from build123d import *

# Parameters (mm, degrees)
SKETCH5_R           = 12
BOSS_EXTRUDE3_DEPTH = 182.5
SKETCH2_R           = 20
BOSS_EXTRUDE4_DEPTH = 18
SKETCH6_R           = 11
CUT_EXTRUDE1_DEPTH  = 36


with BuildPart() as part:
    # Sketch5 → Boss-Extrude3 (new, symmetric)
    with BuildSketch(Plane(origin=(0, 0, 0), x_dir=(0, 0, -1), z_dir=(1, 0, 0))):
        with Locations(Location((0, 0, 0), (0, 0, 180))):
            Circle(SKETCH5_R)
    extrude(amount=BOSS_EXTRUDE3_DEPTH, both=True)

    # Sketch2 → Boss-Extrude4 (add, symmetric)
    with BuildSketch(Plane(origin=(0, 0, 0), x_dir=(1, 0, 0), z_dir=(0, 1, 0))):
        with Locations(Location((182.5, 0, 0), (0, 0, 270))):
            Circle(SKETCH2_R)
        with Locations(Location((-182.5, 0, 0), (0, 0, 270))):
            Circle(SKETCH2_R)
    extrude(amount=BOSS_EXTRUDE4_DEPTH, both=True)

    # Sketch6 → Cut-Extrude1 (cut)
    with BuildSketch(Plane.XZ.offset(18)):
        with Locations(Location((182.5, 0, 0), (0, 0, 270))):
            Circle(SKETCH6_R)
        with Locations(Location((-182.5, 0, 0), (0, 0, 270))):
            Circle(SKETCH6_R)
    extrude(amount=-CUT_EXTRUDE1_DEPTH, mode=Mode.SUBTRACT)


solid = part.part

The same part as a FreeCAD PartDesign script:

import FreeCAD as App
import Part
import Sketcher
from FreeCAD import Vector
Q = App.Units.Quantity

doc = App.newDocument("Part")
body = doc.addObject("PartDesign::Body", "Body")

sketch1 = body.newObject("Sketcher::SketchObject", "Sketch")
sketch1.AttachmentSupport = (doc.getObject("YZ_Plane"), [""])
sketch1.MapMode = "FlatFace"
sketch1.addGeometry(Part.Circle(Vector(0, 0, 0), Vector(0, 0, 1), 12), False)
sketch1.addConstraint([
    Sketcher.Constraint("Coincident", 0, 3, -1, 1),
    Sketcher.Constraint("Diameter", 0, Q("24 mm")),
])
pad1 = body.newObject("PartDesign::Pad", "Pad")
pad1.Profile = sketch1
pad1.Length = 365
pad1.Midplane = True

sketch2 = body.newObject("Sketcher::SketchObject", "Sketch001")
sketch2.AttachmentSupport = (doc.getObject("XZ_Plane"), [""])
sketch2.MapMode = "FlatFace"
sketch2.addGeometry([
    Part.Circle(Vector(182, 0, 0), Vector(0, 0, 1), 20),
    Part.Circle(Vector(-182, 0, 0), Vector(0, 0, 1), 20),
], False)
sketch2.addConstraint([
    Sketcher.Constraint("Equal", 0, 1),
    Sketcher.Constraint("Symmetric", 0, 3, 1, 3, -1, 1),
    Sketcher.Constraint("PointOnObject", 0, 3, -1),
    Sketcher.Constraint("Diameter", 0, Q("40 mm")),
    Sketcher.Constraint("DistanceX", 1, 3, 0, 3, Q("365 mm")),
])
pad2 = body.newObject("PartDesign::Pad", "Pad001")
pad2.Profile = sketch2
pad2.Length = 36
pad2.Midplane = True

sketch3 = body.newObject("Sketcher::SketchObject", "Sketch002")
sketch3.AttachmentSupport = (doc.getObject("XZ_Plane"), [""])
sketch3.MapMode = "FlatFace"
sketch3.AttachmentOffset = App.Placement(Vector(0, 0, 18), App.Rotation())
sketch3.addGeometry([
    Part.Circle(Vector(182, 0, 0), Vector(0, 0, 1), 11),
    Part.Circle(Vector(-182, 0, 0), Vector(0, 0, 1), 11),
], False)
sketch3.addConstraint([
    Sketcher.Constraint("Equal", 0, 1),
    Sketcher.Constraint("Symmetric", 0, 3, 1, 3, -1, 1),
    Sketcher.Constraint("PointOnObject", 0, 3, -1),
    Sketcher.Constraint("Diameter", 0, Q("22 mm")),
    Sketcher.Constraint("DistanceX", 1, 3, 0, 3, Q("365 mm")),
])
pocket1 = body.newObject("PartDesign::Pocket", "Pocket")
pocket1.Profile = sketch3
pocket1.Length = 36

doc.recompute()
